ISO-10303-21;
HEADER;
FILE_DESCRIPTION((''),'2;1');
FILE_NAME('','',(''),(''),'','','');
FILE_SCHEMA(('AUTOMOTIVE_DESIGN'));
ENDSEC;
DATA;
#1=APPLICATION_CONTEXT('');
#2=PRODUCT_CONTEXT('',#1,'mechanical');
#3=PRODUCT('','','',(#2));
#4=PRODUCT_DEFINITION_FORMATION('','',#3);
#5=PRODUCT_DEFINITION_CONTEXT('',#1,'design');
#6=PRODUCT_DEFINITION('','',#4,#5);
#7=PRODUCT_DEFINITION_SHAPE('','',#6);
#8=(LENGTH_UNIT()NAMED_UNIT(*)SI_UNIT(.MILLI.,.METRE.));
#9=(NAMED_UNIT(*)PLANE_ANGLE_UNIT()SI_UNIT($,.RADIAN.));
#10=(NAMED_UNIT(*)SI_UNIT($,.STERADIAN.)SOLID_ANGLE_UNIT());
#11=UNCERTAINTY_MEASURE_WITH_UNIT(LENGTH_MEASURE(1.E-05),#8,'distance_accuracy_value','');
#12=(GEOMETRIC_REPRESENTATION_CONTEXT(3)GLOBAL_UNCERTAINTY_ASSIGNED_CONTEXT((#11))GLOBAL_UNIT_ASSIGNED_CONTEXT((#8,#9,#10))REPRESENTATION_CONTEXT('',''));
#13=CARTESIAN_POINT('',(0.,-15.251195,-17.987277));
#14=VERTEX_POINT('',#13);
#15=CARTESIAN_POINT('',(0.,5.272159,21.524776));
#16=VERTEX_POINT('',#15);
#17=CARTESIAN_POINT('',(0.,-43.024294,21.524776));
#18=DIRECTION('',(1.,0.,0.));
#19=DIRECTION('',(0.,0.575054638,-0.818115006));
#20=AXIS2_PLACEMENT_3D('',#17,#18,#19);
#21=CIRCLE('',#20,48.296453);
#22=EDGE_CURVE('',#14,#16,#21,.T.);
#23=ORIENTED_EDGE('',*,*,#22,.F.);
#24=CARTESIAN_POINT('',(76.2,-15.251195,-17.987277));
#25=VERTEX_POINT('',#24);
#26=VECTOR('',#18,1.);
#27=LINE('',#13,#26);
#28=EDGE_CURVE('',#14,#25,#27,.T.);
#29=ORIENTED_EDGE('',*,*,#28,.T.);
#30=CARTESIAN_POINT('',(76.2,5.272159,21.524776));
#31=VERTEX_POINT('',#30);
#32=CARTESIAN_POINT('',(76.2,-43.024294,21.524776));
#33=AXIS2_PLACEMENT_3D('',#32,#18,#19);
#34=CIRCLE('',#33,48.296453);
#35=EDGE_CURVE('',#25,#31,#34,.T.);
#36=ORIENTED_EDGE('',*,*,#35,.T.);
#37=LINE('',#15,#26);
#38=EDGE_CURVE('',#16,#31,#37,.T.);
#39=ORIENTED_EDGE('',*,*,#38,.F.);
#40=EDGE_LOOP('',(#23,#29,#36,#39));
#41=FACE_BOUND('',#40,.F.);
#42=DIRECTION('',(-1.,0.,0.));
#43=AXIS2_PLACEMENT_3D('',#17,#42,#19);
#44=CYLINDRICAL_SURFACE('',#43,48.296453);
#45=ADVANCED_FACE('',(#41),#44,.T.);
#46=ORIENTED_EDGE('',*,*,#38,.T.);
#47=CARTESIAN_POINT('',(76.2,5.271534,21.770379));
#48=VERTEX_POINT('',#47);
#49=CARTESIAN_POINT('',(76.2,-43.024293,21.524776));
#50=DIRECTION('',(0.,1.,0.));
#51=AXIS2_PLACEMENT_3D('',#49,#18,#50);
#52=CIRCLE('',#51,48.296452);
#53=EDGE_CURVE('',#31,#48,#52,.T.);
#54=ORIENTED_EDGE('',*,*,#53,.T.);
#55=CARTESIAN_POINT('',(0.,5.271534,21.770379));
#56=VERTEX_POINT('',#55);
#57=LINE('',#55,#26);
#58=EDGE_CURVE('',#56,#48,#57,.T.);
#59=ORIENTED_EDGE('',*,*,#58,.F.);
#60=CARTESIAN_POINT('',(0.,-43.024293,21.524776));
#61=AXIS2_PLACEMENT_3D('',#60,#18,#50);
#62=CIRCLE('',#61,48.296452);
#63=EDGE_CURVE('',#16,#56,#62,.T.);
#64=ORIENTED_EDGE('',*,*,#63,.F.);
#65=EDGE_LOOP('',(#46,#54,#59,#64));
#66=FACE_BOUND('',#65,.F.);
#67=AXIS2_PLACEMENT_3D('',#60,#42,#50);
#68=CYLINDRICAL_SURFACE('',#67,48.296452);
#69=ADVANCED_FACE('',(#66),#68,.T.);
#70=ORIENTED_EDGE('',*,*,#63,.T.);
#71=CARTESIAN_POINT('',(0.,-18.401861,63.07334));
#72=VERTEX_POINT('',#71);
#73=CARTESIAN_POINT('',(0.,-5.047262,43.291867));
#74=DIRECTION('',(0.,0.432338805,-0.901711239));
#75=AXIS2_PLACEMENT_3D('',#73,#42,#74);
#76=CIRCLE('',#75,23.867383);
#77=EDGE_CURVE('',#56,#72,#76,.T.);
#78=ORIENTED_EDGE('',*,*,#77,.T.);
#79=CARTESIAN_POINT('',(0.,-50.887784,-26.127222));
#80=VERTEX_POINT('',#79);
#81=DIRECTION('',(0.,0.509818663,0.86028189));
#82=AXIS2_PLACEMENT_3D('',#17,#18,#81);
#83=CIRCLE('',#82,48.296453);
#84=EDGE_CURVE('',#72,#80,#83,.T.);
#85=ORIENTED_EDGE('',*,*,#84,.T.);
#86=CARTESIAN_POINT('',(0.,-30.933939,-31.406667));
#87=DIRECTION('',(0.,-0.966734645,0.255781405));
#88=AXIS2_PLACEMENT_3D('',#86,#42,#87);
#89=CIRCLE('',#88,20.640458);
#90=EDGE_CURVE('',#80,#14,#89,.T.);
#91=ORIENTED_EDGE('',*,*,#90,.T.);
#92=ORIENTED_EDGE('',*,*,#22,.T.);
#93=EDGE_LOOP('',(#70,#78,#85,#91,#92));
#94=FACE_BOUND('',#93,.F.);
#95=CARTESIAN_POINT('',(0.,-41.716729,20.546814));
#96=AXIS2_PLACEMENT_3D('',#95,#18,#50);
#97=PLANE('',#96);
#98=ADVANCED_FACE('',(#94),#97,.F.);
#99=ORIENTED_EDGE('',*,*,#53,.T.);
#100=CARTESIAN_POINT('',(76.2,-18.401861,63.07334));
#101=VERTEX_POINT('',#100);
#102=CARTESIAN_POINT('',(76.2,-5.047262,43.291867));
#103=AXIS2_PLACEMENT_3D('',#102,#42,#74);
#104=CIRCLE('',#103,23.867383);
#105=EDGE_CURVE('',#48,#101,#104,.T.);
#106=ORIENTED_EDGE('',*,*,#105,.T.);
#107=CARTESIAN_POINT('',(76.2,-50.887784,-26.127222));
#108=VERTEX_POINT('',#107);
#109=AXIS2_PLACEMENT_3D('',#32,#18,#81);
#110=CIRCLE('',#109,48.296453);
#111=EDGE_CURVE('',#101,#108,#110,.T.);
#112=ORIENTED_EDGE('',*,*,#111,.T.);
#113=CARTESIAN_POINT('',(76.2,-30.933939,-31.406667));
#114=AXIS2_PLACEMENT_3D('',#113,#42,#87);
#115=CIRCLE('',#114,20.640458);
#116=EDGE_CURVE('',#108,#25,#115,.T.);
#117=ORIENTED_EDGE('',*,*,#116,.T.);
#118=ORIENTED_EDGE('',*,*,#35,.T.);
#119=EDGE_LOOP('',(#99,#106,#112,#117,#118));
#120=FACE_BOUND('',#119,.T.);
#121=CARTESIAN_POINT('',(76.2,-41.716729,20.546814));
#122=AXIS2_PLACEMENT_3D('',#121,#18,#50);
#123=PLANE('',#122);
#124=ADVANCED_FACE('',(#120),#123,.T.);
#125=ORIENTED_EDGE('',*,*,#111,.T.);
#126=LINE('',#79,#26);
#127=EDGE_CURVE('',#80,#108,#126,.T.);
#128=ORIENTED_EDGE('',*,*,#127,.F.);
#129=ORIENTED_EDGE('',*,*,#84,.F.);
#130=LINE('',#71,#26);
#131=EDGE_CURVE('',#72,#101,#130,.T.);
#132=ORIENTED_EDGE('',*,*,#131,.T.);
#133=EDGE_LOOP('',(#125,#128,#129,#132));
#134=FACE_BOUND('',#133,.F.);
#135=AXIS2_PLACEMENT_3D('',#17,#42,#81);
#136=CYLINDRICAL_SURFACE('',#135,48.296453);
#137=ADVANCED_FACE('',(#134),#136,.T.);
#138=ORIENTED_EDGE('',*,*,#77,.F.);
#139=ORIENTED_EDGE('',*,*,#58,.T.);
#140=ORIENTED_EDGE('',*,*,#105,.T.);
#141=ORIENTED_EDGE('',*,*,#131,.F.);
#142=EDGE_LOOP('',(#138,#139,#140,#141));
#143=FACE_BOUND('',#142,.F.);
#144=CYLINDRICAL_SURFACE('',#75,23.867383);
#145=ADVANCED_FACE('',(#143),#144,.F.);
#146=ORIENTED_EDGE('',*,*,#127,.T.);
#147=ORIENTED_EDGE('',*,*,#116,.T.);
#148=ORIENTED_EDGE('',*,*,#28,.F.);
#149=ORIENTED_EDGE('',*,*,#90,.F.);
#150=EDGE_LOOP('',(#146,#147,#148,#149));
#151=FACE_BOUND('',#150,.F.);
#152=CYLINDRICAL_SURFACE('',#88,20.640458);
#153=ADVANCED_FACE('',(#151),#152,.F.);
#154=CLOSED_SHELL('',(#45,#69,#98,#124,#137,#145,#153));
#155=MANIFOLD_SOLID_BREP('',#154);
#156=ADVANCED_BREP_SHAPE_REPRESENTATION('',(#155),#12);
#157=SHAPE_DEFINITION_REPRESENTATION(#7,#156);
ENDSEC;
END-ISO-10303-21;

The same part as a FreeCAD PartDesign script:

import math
import FreeCAD as App
import Part
import Sketcher
Q = App.Units.Quantity

doc = App.newDocument("Part")
body = doc.addObject("PartDesign::Body", "Body")

# Sketch on YZ plane
sketch1 = body.newObject("Sketcher::SketchObject", "Sketch")
sketch1.AttachmentSupport = (doc.getObject("YZ_Plane"), [""])
sketch1.MapMode = "FlatFace"
sketch1.addGeometry([
    Part.ArcOfCircle(Part.Circle(App.Vector(-30.93, -31.41, 0), App.Vector(0, 0, 1), 20.64), math.radians(41), math.radians(165)),  # 0
    Part.ArcOfCircle(Part.Circle(App.Vector(-43.02, 21.52, 0), App.Vector(0, 0, 1), 48.3), math.radians(-55), math.radians(0)),  # 1
    Part.ArcOfCircle(Part.Circle(App.Vector(-43.02, 21.52, 0), App.Vector(0, 0, 1), 48.3), math.radians(0), math.radians(0.29)),  # 2
    Part.ArcOfCircle(Part.Circle(App.Vector(-5.05, 43.29, 0), App.Vector(0, 0, 1), 23.87), math.radians(124), math.radians(296)),  # 3
    Part.ArcOfCircle(Part.Circle(App.Vector(-43.02, 21.52, 0), App.Vector(0, 0, 1), 48.3), math.radians(59), math.radians(261)),  # 4
], False)
sketch1.addConstraint([
    Sketcher.Constraint("Coincident", 0, 1, 1, 1),
    Sketcher.Constraint("Tangent", 1, 2, 2, 1),
    Sketcher.Constraint("Coincident", 2, 2, 3, 2),
    Sketcher.Constraint("Coincident", 3, 1, 4, 1),
    Sketcher.Constraint("Coincident", 4, 2, 0, 2),
    Sketcher.Constraint("Coincident", 4, 3, 1, 3),
    Sketcher.Constraint("Equal", 1, 2),
    Sketcher.Constraint("Equal", 2, 4),
    Sketcher.Constraint("Horizontal", 4, 3, 1, 2),
    Sketcher.Constraint("Radius", 2, 48.296452),
    Sketcher.Constraint("Radius", 0, 20.640458),
    Sketcher.Constraint("Radius", 3, 23.867383),
    Sketcher.Constraint("DistanceX", 2, 3, 0, 1, 27.773098),
    Sketcher.Constraint("DistanceX", 3, 1, 3, 3, 13.354599),
    Sketcher.Constraint("DistanceX", 0, 3, -1, 1, 30.933939),
    Sketcher.Constraint("DistanceX", 3, 3, -1, 1, 5.047262),
    Sketcher.Constraint("DistanceX", -1, 1, 1, 2, 5.272159),
    Sketcher.Constraint("DistanceY", -1, 1, 2, 2, 21.770379),
])
pad1 = body.newObject("PartDesign::Pad", "Pad")
pad1.Profile = sketch1
pad1.Length = Q("3 in")

doc.recompute()
